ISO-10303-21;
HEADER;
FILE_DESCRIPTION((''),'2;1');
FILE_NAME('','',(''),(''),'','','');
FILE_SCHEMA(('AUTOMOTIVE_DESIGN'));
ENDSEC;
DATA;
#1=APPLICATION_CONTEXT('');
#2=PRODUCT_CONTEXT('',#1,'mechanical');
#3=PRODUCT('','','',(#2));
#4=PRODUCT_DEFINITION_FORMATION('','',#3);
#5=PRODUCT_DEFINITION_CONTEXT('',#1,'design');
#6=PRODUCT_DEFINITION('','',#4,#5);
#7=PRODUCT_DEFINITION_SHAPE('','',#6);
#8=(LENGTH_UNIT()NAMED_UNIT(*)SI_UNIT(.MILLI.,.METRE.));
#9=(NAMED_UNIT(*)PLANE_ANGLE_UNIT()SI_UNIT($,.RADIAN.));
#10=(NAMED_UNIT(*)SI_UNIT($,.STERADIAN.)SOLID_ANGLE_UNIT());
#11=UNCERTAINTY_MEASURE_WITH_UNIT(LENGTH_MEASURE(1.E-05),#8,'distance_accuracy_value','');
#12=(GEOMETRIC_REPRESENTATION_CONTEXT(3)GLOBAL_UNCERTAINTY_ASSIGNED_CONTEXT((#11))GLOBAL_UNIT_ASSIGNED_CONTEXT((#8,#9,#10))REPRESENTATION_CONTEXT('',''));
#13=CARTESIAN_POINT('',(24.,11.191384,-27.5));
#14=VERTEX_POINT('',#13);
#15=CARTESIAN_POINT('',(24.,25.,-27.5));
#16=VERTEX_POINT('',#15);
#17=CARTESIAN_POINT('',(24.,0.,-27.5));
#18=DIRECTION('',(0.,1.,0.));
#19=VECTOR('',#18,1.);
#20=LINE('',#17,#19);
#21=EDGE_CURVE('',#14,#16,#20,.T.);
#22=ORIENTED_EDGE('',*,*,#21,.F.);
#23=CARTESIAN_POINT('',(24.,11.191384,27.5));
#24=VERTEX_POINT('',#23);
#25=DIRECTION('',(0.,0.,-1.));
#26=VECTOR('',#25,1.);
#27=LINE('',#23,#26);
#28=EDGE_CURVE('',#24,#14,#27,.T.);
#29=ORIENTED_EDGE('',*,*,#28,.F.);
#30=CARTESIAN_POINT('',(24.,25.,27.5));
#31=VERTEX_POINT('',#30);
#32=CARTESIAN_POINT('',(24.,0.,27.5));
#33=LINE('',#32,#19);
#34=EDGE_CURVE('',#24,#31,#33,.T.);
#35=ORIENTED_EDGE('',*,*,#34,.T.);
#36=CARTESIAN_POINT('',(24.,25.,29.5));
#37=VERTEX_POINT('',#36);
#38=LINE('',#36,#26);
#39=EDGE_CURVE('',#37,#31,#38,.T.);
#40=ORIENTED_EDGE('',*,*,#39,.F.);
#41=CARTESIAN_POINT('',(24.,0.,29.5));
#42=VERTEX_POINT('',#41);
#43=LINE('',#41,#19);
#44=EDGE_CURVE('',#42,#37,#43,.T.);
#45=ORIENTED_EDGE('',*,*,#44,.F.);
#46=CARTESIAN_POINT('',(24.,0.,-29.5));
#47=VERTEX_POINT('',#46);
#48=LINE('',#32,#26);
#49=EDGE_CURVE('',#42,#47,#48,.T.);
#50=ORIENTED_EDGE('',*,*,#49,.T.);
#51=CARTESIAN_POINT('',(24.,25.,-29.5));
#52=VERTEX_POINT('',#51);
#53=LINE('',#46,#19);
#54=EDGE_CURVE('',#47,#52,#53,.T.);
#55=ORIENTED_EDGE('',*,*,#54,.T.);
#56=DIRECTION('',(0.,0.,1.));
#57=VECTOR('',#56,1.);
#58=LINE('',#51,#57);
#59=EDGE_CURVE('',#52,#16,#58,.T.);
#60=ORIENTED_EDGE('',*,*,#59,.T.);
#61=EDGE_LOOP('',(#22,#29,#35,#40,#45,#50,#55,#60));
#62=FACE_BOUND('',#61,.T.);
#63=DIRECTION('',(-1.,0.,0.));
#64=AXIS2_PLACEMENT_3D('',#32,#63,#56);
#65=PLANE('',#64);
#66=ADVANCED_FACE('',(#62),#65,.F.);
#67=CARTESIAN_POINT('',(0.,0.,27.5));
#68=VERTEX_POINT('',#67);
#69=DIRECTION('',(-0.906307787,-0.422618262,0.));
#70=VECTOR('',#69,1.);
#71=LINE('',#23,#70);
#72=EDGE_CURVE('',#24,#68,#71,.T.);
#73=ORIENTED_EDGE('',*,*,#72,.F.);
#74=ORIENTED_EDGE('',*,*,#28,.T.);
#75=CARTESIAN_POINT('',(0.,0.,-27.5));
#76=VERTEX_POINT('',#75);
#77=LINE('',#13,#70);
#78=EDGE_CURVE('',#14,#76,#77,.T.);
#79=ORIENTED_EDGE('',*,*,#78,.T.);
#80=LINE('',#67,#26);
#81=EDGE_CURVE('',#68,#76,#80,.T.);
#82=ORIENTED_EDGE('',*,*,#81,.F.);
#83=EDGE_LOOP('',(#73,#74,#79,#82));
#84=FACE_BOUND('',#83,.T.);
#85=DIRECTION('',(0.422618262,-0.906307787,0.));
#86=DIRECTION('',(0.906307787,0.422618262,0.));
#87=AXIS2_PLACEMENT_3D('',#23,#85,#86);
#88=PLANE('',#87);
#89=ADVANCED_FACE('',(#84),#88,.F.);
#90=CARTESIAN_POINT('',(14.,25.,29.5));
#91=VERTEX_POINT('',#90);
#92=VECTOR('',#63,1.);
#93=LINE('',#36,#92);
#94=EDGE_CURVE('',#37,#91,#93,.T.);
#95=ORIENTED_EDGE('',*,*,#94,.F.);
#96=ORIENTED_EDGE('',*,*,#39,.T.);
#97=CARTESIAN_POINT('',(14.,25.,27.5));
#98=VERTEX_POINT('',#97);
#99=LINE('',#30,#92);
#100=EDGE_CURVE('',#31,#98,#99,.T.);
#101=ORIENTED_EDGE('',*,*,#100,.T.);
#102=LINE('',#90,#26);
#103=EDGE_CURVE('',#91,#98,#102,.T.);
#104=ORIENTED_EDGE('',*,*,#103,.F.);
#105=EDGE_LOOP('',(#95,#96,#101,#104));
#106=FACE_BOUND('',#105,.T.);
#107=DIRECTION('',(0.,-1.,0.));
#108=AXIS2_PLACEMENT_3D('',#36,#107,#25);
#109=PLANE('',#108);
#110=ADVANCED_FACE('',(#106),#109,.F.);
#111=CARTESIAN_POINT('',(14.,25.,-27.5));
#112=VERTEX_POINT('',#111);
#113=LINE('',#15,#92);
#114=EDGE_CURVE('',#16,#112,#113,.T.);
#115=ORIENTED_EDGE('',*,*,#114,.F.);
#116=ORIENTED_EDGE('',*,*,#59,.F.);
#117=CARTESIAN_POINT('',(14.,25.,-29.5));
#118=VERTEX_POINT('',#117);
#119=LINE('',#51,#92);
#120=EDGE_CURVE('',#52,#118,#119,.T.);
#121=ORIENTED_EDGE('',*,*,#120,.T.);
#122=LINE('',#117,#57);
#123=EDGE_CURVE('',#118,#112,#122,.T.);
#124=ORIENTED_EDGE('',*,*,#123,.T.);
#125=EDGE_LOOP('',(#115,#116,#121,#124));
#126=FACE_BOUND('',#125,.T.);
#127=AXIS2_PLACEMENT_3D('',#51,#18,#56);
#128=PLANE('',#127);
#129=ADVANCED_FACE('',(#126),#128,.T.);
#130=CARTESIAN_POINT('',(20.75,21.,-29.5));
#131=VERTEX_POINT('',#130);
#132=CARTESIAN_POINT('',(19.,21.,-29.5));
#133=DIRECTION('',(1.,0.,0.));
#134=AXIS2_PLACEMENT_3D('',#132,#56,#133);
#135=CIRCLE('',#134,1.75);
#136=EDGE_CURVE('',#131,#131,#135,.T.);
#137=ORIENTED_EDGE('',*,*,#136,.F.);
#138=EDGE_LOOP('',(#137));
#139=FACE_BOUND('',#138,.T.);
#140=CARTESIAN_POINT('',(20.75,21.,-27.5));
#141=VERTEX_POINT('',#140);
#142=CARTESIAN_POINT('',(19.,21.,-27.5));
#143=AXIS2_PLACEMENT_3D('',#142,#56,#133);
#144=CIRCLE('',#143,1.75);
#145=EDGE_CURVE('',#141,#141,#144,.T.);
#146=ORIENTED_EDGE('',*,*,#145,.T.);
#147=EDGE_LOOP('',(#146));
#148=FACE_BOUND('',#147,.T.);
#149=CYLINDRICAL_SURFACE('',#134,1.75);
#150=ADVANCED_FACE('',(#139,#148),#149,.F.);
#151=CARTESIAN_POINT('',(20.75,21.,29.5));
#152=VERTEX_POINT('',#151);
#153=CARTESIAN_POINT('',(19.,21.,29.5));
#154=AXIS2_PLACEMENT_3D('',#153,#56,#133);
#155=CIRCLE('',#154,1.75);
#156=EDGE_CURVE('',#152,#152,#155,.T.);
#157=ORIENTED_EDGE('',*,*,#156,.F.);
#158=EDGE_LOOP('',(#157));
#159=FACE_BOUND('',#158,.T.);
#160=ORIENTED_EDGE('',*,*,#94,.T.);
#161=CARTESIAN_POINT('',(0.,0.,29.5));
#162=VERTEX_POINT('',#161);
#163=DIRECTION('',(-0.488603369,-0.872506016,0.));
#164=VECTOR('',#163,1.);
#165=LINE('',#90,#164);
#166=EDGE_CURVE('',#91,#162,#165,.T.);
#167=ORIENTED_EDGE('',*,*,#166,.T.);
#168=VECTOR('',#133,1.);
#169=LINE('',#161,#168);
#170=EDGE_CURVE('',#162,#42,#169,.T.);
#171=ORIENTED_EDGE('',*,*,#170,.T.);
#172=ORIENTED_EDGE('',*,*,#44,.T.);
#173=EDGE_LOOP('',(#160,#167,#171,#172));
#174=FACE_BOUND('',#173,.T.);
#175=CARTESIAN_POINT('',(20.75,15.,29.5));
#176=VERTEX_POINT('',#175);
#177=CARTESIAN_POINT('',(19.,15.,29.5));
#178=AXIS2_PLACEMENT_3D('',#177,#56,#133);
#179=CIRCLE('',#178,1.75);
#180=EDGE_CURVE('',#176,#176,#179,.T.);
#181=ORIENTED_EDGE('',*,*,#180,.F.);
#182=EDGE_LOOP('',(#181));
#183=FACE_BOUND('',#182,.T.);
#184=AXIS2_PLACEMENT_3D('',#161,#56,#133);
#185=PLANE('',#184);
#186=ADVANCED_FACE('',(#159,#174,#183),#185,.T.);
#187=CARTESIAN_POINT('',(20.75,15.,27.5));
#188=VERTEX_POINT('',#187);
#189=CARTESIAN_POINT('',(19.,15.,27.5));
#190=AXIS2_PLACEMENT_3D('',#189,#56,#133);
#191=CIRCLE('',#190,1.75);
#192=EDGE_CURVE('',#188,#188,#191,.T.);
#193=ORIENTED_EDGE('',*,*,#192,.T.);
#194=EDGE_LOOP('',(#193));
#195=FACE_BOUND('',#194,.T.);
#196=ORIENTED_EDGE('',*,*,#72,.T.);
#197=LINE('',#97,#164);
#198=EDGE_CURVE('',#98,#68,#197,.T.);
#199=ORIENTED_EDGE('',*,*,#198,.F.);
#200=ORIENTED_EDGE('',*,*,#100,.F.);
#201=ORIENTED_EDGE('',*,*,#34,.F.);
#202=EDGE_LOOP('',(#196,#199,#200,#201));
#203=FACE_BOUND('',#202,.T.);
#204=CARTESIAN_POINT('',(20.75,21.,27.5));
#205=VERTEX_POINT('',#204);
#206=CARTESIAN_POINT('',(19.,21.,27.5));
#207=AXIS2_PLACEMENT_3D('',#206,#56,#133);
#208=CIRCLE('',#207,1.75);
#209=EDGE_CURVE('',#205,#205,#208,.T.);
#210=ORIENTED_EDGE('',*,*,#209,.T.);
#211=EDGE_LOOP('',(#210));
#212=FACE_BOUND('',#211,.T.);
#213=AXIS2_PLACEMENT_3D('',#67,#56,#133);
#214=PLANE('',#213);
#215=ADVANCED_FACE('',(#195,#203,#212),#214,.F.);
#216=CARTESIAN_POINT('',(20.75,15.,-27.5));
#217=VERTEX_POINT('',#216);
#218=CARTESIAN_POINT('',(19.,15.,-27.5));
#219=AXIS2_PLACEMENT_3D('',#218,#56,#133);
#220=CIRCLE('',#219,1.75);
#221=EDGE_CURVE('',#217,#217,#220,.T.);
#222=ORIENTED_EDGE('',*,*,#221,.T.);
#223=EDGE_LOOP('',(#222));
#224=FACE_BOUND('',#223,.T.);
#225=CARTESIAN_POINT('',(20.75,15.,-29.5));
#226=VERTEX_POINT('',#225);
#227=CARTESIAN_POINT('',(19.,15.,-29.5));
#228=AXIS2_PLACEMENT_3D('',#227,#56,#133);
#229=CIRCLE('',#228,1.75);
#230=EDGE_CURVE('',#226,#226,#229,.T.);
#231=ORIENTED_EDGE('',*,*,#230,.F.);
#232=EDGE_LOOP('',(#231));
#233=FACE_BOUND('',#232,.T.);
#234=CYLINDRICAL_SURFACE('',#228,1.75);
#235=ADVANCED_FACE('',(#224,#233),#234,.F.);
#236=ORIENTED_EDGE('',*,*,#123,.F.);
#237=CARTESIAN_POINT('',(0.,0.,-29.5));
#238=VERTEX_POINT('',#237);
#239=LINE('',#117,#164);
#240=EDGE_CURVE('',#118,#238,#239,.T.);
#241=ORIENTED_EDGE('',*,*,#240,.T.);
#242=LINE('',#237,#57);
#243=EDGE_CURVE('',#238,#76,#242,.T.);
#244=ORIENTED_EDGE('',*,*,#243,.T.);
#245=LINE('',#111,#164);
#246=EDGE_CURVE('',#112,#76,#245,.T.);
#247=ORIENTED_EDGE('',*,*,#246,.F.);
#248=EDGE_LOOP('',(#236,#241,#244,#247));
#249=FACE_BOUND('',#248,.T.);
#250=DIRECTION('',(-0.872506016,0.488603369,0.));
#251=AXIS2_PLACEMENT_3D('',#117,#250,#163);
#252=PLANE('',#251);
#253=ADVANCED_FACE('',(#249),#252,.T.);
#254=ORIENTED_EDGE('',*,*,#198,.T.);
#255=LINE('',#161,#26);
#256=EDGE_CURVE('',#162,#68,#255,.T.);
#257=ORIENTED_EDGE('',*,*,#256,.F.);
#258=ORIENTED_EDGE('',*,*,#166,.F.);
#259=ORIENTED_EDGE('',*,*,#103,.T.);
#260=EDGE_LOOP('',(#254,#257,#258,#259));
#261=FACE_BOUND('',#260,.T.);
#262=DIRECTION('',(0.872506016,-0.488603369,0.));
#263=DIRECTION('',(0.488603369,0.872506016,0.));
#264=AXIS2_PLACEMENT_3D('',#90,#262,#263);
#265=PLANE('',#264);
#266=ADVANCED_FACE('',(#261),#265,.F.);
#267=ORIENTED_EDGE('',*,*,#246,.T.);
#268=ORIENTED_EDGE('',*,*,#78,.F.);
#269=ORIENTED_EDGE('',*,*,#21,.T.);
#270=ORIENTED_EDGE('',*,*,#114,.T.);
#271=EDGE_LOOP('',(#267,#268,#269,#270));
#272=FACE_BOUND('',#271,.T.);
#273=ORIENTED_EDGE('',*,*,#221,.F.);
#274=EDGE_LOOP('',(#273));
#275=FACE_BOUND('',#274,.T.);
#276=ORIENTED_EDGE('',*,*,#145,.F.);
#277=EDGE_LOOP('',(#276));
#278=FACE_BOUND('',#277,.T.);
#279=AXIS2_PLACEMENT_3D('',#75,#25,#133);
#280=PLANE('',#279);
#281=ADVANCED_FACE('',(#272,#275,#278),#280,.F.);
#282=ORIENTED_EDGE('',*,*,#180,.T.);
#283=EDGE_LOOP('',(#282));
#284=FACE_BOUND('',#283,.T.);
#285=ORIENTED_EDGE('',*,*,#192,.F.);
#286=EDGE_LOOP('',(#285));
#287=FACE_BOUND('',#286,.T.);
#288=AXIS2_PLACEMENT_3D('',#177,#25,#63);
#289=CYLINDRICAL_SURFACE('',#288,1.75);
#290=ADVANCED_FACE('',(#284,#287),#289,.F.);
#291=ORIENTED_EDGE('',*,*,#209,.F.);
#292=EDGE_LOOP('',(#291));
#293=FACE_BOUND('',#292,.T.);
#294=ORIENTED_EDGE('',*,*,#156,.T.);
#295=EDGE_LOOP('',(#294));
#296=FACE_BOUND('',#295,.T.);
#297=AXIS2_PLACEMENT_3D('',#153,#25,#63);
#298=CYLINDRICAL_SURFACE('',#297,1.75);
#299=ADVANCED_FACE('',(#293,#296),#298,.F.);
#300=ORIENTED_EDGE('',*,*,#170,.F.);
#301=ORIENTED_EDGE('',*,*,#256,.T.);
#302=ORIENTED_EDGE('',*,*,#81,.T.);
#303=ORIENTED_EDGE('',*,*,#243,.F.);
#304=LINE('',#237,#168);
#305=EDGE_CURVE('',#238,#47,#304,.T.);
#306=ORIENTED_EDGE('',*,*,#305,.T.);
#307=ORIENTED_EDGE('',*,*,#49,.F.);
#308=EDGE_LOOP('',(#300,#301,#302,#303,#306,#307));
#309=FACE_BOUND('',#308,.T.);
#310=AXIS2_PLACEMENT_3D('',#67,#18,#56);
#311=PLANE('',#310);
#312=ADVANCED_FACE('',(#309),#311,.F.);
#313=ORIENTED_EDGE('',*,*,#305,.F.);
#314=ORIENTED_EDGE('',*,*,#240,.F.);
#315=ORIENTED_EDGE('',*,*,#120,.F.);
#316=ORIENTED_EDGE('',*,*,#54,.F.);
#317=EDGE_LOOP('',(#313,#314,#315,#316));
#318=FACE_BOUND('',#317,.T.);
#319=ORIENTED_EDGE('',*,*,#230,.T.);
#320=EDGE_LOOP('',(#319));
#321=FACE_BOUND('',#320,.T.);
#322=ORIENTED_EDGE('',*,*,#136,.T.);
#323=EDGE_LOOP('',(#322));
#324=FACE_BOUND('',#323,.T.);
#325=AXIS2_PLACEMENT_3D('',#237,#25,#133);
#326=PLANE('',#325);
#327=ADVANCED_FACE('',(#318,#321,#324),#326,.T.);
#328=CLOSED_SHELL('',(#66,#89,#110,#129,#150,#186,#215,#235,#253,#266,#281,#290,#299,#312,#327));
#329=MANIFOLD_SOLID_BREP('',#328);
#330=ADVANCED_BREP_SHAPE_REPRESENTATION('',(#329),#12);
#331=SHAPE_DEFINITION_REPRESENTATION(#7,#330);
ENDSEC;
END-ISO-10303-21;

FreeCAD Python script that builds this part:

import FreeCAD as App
import Part
import Sketcher
from FreeCAD import Vector
Q = App.Units.Quantity

doc = App.newDocument("Part")
body = doc.addObject("PartDesign::Body", "Body")

sketch1 = doc.addObject("Sketcher::SketchObject", "Sketch")
body.addObject(sketch1)
sketch1.AttachmentSupport = (doc.XY_Plane, [""])
sketch1.MapMode = "FlatFace"
sketch1.addGeometry([
    Part.LineSegment(Vector(0, 0, 0), Vector(24, 0, 0)),
    Part.LineSegment(Vector(24, 0, 0), Vector(24, 11.191384, 0)),
    Part.LineSegment(Vector(24, 11.191384, 0), Vector(0, 0, 0)),
], False)
sketch1.addConstraint([
    Sketcher.Constraint("Coincident", 0, 2, 1, 1),
    Sketcher.Constraint("Coincident", 1, 2, 2, 1),
    Sketcher.Constraint("Coincident", 2, 2, 0, 1),
    Sketcher.Constraint("Horizontal", 0),
    Sketcher.Constraint("Vertical", 1),
    Sketcher.Constraint("Coincident", 2, 2, -1, 1),
    Sketcher.Constraint("DistanceX", 0, 1, 0, 2, Q("24 mm")),
    Sketcher.Constraint("Angle", 2, Q("-155 deg")),
])
pad1 = doc.addObject("PartDesign::Pad", "Pad")
body.addObject(pad1)
pad1.Profile = sketch1
pad1.Length = 55
pad1.Midplane = True

sketch2 = doc.addObject("Sketcher::SketchObject", "Sketch001")
body.addObject(sketch2)
sketch2.AttachmentSupport = (doc.XY_Plane, [""])
sketch2.MapMode = "FlatFace"
sketch2.AttachmentOffset = App.Placement(Vector(0, 0, 27.5), App.Rotation())
sketch2.addGeometry([
    Part.LineSegment(Vector(24, 0, 0), Vector(24, 25, 0)),
    Part.LineSegment(Vector(24, 25, 0), Vector(14, 25, 0)),
    Part.LineSegment(Vector(14, 25, 0), Vector(0, 0, 0)),
    Part.LineSegment(Vector(0, 0, 0), Vector(24, 0, 0)),
    Part.Circle(Vector(19, 15, 0), Vector(0, 0, 1), 1.75),
    Part.Circle(Vector(19, 21, 0), Vector(0, 0, 1), 1.75),
], False)
sketch2.addConstraint([
    Sketcher.Constraint("Coincident", 0, 2, 1, 1),
    Sketcher.Constraint("Coincident", 1, 2, 2, 1),
    Sketcher.Constraint("Coincident", 2, 2, 3, 1),
    Sketcher.Constraint("Coincident", 3, 2, 0, 1),
    Sketcher.Constraint("Vertical", 0),
    Sketcher.Constraint("Horizontal", 1),
    Sketcher.Constraint("Horizontal", 3),
    Sketcher.Constraint("Coincident", 2, 2, -1, 1),
    Sketcher.Constraint("Equal", 4, 5),
    Sketcher.Constraint("Vertical", 4, 3, 5, 3),
    Sketcher.Constraint("Diameter", 4, Q("3.5 mm")),
    Sketcher.Constraint("DistanceX", 1, 2, 1, 1, Q("10 mm")),
    Sketcher.Constraint("DistanceX", 3, 1, 3, 2, Q("24 mm")),
    Sketcher.Constraint("DistanceY", 0, 1, 0, 2, Q("25 mm")),
    Sketcher.Constraint("DistanceX", -1, 1, 4, 3, Q("19 mm")),
    Sketcher.Constraint("DistanceY", -1, 1, 4, 3, Q("15 mm")),
    Sketcher.Constraint("DistanceY", -1, 1, 5, 3, Q("21 mm")),
])
pad2 = doc.addObject("PartDesign::Pad", "Pad001")
body.addObject(pad2)
pad2.Profile = sketch2
pad2.Length = 2
doc.recompute()

mirrored = doc.addObject("PartDesign::Mirrored", "Mirrored")
body.addObject(mirrored)
mirrored.Originals = [pad2]
mirrored.MirrorPlane = (doc.XY_Plane, [""])
body.Tip = mirrored

doc.recompute()
